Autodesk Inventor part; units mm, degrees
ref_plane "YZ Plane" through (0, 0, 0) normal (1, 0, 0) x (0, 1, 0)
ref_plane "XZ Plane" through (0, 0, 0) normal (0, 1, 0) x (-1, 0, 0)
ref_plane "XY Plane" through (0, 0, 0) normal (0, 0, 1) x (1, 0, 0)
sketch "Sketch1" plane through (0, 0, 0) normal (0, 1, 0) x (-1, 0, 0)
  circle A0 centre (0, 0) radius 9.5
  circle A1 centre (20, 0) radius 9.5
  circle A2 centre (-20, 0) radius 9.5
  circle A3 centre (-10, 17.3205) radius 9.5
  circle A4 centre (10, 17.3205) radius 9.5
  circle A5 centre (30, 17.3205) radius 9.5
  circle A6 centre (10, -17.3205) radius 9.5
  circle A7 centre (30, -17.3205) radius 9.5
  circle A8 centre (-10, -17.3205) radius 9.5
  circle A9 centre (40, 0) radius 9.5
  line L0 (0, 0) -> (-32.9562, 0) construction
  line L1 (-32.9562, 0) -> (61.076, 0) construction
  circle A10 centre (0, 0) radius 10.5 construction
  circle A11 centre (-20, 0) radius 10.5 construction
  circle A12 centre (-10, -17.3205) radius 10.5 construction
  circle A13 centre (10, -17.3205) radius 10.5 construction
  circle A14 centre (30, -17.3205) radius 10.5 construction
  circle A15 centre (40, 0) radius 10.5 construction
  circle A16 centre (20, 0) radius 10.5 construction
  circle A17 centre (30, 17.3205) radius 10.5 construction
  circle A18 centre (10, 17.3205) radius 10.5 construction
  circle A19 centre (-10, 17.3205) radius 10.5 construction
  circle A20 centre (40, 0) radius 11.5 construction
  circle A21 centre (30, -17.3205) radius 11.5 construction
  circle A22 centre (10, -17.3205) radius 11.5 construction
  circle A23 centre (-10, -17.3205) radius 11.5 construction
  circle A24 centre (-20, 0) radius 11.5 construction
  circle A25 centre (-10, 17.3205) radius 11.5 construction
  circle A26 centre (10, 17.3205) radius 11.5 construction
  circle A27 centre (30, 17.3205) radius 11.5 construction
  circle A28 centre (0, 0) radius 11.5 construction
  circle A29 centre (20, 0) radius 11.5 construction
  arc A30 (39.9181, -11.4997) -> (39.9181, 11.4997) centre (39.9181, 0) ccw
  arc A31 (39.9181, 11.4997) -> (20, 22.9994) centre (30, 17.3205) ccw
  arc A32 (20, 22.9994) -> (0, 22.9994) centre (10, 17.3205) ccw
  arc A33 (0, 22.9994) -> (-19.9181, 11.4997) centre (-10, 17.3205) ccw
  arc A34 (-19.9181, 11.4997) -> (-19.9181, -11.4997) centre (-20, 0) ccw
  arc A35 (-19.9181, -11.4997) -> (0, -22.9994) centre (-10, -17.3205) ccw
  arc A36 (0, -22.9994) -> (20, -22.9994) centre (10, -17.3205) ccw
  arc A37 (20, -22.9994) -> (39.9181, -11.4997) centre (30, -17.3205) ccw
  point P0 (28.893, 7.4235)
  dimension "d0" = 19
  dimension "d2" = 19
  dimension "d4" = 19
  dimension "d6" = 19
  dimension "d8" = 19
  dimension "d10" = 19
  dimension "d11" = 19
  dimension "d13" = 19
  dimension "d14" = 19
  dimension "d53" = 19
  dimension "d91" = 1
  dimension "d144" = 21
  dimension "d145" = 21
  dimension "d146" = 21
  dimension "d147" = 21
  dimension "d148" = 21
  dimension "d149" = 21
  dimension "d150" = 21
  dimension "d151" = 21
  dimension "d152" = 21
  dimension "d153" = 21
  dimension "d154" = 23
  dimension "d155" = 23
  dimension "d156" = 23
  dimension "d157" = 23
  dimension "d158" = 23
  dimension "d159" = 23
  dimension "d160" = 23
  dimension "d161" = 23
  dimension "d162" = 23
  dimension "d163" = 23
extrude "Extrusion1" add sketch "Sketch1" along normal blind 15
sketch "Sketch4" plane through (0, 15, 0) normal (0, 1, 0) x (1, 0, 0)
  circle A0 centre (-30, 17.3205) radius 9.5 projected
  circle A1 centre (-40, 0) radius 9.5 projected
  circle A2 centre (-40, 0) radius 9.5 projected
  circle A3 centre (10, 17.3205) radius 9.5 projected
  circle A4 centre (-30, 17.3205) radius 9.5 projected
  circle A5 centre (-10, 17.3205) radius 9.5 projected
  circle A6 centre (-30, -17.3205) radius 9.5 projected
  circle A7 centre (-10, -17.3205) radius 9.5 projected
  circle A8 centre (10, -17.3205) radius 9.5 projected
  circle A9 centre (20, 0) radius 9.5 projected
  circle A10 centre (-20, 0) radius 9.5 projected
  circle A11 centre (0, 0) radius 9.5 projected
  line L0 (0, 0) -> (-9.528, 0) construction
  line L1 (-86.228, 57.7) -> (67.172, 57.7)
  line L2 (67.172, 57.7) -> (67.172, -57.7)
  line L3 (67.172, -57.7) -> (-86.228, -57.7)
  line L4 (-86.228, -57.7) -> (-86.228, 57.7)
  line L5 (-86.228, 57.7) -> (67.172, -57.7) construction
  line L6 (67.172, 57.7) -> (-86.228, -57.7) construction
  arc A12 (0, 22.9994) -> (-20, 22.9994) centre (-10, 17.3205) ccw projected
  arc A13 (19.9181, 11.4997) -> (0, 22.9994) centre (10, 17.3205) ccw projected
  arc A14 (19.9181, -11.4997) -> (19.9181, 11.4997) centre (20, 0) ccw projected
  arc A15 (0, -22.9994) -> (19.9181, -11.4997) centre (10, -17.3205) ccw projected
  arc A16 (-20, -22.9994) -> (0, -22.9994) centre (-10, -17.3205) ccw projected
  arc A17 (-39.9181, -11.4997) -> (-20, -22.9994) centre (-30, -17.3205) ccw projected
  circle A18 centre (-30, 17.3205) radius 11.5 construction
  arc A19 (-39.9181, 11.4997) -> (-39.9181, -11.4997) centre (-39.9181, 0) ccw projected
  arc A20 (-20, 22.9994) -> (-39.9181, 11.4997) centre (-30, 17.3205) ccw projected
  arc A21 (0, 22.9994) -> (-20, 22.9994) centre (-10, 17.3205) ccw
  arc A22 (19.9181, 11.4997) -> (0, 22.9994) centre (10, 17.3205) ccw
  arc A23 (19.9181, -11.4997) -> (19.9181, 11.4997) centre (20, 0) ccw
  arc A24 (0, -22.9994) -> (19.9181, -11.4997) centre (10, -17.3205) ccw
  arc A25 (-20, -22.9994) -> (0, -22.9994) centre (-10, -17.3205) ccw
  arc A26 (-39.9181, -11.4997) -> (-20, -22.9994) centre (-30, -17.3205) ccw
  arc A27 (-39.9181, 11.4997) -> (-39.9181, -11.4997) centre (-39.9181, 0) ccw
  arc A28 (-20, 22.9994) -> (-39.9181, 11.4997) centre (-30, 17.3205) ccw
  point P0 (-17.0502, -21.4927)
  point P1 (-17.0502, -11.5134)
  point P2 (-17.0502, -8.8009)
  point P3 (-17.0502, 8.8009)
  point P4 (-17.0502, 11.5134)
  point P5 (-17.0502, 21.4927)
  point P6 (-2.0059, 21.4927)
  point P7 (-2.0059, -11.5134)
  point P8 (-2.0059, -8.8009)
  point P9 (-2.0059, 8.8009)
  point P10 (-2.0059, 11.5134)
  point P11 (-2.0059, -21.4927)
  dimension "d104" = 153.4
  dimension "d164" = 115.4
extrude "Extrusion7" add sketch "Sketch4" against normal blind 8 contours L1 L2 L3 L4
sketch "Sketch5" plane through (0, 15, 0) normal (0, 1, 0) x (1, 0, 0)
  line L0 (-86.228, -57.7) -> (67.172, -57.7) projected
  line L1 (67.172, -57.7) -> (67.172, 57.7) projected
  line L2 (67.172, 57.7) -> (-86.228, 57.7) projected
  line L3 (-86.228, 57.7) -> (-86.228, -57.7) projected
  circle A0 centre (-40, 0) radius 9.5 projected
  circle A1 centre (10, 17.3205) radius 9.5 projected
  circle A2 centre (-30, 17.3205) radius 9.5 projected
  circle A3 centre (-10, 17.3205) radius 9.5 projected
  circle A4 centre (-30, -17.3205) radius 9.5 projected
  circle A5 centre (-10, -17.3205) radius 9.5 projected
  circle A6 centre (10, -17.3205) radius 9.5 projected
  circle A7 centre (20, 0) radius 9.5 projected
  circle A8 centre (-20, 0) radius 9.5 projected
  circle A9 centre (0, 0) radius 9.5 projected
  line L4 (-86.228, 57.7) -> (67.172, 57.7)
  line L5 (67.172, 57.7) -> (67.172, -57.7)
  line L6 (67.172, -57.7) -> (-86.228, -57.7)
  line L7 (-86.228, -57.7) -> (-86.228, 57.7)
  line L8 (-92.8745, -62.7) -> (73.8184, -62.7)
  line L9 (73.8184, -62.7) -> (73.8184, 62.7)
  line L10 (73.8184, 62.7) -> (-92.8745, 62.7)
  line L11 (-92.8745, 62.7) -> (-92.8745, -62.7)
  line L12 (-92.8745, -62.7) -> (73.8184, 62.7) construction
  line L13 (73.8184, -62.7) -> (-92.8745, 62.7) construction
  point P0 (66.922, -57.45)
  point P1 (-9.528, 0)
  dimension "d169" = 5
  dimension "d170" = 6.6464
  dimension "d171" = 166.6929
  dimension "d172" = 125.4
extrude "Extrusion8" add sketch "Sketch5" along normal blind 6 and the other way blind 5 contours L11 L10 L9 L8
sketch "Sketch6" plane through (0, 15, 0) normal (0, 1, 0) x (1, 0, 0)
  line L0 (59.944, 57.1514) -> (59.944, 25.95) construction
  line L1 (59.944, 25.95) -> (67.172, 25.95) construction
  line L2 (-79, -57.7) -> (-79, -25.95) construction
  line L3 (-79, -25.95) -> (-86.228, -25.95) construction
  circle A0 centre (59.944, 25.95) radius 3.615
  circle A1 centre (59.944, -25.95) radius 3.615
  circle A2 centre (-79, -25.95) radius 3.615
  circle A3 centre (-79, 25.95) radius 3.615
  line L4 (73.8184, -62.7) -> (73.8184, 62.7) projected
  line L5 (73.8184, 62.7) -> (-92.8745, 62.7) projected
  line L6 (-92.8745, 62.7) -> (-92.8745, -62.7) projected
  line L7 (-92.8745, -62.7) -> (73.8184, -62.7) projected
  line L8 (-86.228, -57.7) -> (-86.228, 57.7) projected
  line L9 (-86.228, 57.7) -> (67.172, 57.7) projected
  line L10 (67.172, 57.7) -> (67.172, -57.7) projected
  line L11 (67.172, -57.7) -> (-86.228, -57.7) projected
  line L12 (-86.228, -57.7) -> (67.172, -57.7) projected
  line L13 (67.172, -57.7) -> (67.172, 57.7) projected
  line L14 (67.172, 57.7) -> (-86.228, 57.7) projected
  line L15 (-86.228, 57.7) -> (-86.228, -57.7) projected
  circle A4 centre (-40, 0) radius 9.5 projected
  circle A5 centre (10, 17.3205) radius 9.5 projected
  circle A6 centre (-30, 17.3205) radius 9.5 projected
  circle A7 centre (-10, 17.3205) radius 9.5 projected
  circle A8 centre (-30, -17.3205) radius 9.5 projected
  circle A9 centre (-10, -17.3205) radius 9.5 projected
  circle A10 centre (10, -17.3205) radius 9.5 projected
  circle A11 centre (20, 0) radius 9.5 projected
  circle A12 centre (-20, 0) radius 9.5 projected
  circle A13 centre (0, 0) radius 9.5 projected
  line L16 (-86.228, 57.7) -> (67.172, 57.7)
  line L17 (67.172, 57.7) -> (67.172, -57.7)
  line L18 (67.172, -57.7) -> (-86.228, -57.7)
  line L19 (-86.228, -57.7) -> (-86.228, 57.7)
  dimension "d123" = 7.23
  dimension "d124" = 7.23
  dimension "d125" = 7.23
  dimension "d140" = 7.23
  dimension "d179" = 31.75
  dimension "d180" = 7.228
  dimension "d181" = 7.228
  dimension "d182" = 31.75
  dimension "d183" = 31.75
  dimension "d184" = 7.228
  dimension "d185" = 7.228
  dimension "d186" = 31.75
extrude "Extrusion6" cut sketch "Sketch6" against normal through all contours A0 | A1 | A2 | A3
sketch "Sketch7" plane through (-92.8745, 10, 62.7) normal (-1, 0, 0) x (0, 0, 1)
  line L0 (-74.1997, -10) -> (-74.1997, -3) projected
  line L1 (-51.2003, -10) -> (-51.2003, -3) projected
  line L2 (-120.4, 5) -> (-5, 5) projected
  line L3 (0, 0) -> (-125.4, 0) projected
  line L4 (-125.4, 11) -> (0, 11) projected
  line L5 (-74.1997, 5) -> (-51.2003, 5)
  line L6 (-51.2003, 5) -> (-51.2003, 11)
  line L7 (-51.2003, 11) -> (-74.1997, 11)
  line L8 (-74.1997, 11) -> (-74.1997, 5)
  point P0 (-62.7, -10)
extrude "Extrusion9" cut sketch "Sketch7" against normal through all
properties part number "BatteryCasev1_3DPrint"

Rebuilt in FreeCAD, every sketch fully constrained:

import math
import FreeCAD as App
import Part
import Sketcher

V = App.Vector
Q = App.Units.Quantity


def add_polygon(sketch, points):
    """Adds a closed chain of lines whose ends are joined by coincident constraints."""
    first, n = sketch.GeometryCount, len(points)
    for a, b in zip(points, points[1:] + points[:1]):
        sketch.addGeometry(Part.LineSegment(App.Vector(*a, 0), App.Vector(*b, 0)), False)
    for i in range(n):
        sketch.addConstraint(Sketcher.Constraint("Coincident", first + i, 2, first + (i + 1) % n, 1))

doc = App.newDocument("Part")
body = doc.addObject("PartDesign::Body", "Body")

# Sketch on XZ plane
sketch1 = body.newObject("Sketcher::SketchObject", "Sketch")
sketch1.AttachmentSupport = (doc.getObject("XZ_Plane"), [""])
sketch1.MapMode = "FlatFace"
sketch1.addGeometry(Part.ArcOfCircle(Part.Circle(V(-30, -17, 0), V(0, 0, 1), 12), math.radians(150), math.radians(330)), False)
sketch1.addGeometry(Part.ArcOfCircle(Part.Circle(V(-40, 0, 0), V(0, 0, 1), 11), math.radians(90), math.radians(270)), False)
sketch1.addGeometry(Part.ArcOfCircle(Part.Circle(V(-30, 17, 0), V(0, 0, 1), 12), math.radians(30), math.radians(210)), False)
sketch1.addGeometry(Part.ArcOfCircle(Part.Circle(V(-10, 17, 0), V(0, 0, 1), 11), math.radians(30), math.radians(150)), False)
sketch1.addGeometry(Part.ArcOfCircle(Part.Circle(V(10, 17, 0), V(0, 0, 1), 12), math.radians(-30), math.radians(150)), False)
sketch1.addGeometry(Part.ArcOfCircle(Part.Circle(V(20, 0, 0), V(0, 0, 1), 11), math.radians(-90), math.radians(90)), False)
sketch1.addGeometry(Part.ArcOfCircle(Part.Circle(V(10, -17, 0), V(0, 0, 1), 12), math.radians(-150), math.radians(30)), False)
sketch1.addGeometry(Part.ArcOfCircle(Part.Circle(V(-10, -17, 0), V(0, 0, 1), 11), math.radians(-150), math.radians(-30)), False)
sketch1.addGeometry(Part.Circle(V(10, -17, 0), V(0, 0, 1), 10), False)
sketch1.addGeometry(Part.Circle(V(-10, -17, 0), V(0, 0, 1), 10), False)
sketch1.addGeometry(Part.Circle(V(-30, -17, 0), V(0, 0, 1), 10), False)
sketch1.addGeometry(Part.Circle(V(20, 0, 0), V(0, 0, 1), 10), False)
sketch1.addGeometry(Part.Circle(V(0, 0, 0), V(0, 0, 1), 10), False)
sketch1.addGeometry(Part.Circle(V(10, 17, 0), V(0, 0, 1), 10), False)
sketch1.addGeometry(Part.Circle(V(-20, 0, 0), V(0, 0, 1), 10), False)
sketch1.addGeometry(Part.Circle(V(-40, 0, 0), V(0, 0, 1), 10), False)
sketch1.addGeometry(Part.Circle(V(-10, 17, 0), V(0, 0, 1), 10), False)
sketch1.addGeometry(Part.Circle(V(-30, 17, 0), V(0, 0, 1), 10), False)
sketch1.addConstraint(Sketcher.Constraint("Coincident", 0, 1, 1, 2))
sketch1.addConstraint(Sketcher.Constraint("Coincident", 1, 1, 2, 2))
sketch1.addConstraint(Sketcher.Constraint("Coincident", 2, 1, 3, 2))
sketch1.addConstraint(Sketcher.Constraint("Coincident", 3, 1, 4, 2))
sketch1.addConstraint(Sketcher.Constraint("Coincident", 4, 1, 5, 2))
sketch1.addConstraint(Sketcher.Constraint("Coincident", 5, 1, 6, 2))
sketch1.addConstraint(Sketcher.Constraint("Coincident", 6, 1, 7, 2))
sketch1.addConstraint(Sketcher.Constraint("Coincident", 7, 1, 0, 2))
sketch1.addConstraint(Sketcher.Constraint("Coincident", 12, 3, -1, 1))
sketch1.addConstraint(Sketcher.Constraint("Coincident", 8, 3, 6, 3))
sketch1.addConstraint(Sketcher.Constraint("Coincident", 9, 3, 7, 3))
sketch1.addConstraint(Sketcher.Constraint("Coincident", 10, 3, 0, 3))
sketch1.addConstraint(Sketcher.Constraint("Coincident", 11, 3, 5, 3))
sketch1.addConstraint(Sketcher.Constraint("Coincident", 13, 3, 4, 3))
sketch1.addConstraint(Sketcher.Constraint("Coincident", 16, 3, 3, 3))
sketch1.addConstraint(Sketcher.Constraint("Coincident", 17, 3, 2, 3))
sketch1.addConstraint(Sketcher.Constraint("Equal", 0, 2))
sketch1.addConstraint(Sketcher.Constraint("Equal", 2, 3))
sketch1.addConstraint(Sketcher.Constraint("Equal", 3, 4))
sketch1.addConstraint(Sketcher.Constraint("Equal", 4, 5))
sketch1.addConstraint(Sketcher.Constraint("Equal", 5, 6))
sketch1.addConstraint(Sketcher.Constraint("Equal", 6, 7))
sketch1.addConstraint(Sketcher.Constraint("Equal", 8, 9))
sketch1.addConstraint(Sketcher.Constraint("Equal", 9, 10))
sketch1.addConstraint(Sketcher.Constraint("Equal", 10, 11))
sketch1.addConstraint(Sketcher.Constraint("Equal", 11, 12))
sketch1.addConstraint(Sketcher.Constraint("Equal", 12, 13))
sketch1.addConstraint(Sketcher.Constraint("Equal", 13, 14))
sketch1.addConstraint(Sketcher.Constraint("Equal", 14, 15))
sketch1.addConstraint(Sketcher.Constraint("Equal", 15, 16))
sketch1.addConstraint(Sketcher.Constraint("Equal", 16, 17))
sketch1.addConstraint(Sketcher.Constraint("Symmetric", 3, 3, 6, 3, -1, 1))
sketch1.addConstraint(Sketcher.Constraint("Symmetric", 4, 3, 7, 3, -1, 1))
sketch1.addConstraint(Sketcher.Constraint("Symmetric", 5, 3, 14, 3, -1, 1))
sketch1.addConstraint(Sketcher.Constraint("Symmetric", 3, 3, 4, 3, -2))
sketch1.addConstraint(Sketcher.Constraint("Symmetric", 0, 3, 2, 3, -1))
sketch1.addConstraint(Sketcher.Constraint("PointOnObject", 1, 3, -1))
sketch1.addConstraint(Sketcher.Constraint("PointOnObject", 5, 3, -1))
sketch1.addConstraint(Sketcher.Constraint("PointOnObject", 15, 3, -1))
sketch1.addConstraint(Sketcher.Constraint("Horizontal", 2, 3, 3, 3))
sketch1.addConstraint(Sketcher.Constraint("Horizontal", 2, 1, 3, 1))
sketch1.addConstraint(Sketcher.Constraint("Horizontal", 1, 1, 4, 1))
sketch1.addConstraint(Sketcher.Constraint("Vertical", 1, 3, 0, 1))
sketch1.addConstraint(Sketcher.Constraint("Vertical", 14, 3, 2, 1))
sketch1.addConstraint(Sketcher.Constraint("Diameter", 8, Q("19 mm")))
sketch1.addConstraint(Sketcher.Constraint("Radius", 0, Q("11.5 mm")))
sketch1.addConstraint(Sketcher.Constraint("DistanceX", 0, 3, -1, 1, Q("30 mm")))
sketch1.addConstraint(Sketcher.Constraint("DistanceX", 15, 3, -1, 1, Q("40 mm")))
sketch1.addConstraint(Sketcher.Constraint("DistanceY", -1, 1, 2, 1, Q("22.9994 mm")))
pad1 = body.newObject("PartDesign::Pad", "Pad")
pad1.Profile = sketch1
pad1.Length = 15
pad1.Reversed = True

# Sketch on XZ plane
sketch2 = body.newObject("Sketcher::SketchObject", "Sketch001")
sketch2.AttachmentSupport = (doc.getObject("XZ_Plane"), [""])
sketch2.MapMode = "FlatFace"
sketch2.AttachmentOffset = App.Placement(V(0, 0, -15), App.Rotation())
add_polygon(sketch2, [(67, -58), (-86, -58), (-86, 58), (67, 58)])  # lines 0-3
sketch2.addGeometry(Part.ArcOfCircle(Part.Circle(V(-10, -17, 0), V(0, 0, 1), 11), math.radians(-150), math.radians(-30)), False)  # 4
sketch2.addGeometry(Part.ArcOfCircle(Part.Circle(V(10, -17, 0), V(0, 0, 1), 12), math.radians(-150), math.radians(30)), False)  # 5
sketch2.addGeometry(Part.ArcOfCircle(Part.Circle(V(20, 0, 0), V(0, 0, 1), 11), math.radians(-90), math.radians(90)), False)  # 6
sketch2.addGeometry(Part.ArcOfCircle(Part.Circle(V(10, 17, 0), V(0, 0, 1), 11), math.radians(-30), math.radians(150)), False)  # 7
sketch2.addGeometry(Part.ArcOfCircle(Part.Circle(V(-10, 17, 0), V(0, 0, 1), 11), math.radians(30), math.radians(150)), False)  # 8
sketch2.addGeometry(Part.ArcOfCircle(Part.Circle(V(-30, 17, 0), V(0, 0, 1), 12), math.radians(30), math.radians(210)), False)  # 9
sketch2.addGeometry(Part.ArcOfCircle(Part.Circle(V(-40, 0, 0), V(0, 0, 1), 11), math.radians(90), math.radians(270)), False)  # 10
sketch2.addGeometry(Part.ArcOfCircle(Part.Circle(V(-30, -17, 0), V(0, 0, 1), 12), math.radians(150), math.radians(330)), False)  # 11
sketch2.addConstraint(Sketcher.Constraint("Coincident", 4, 2, 5, 1))
sketch2.addConstraint(Sketcher.Constraint("Coincident", 5, 2, 6, 1))
sketch2.addConstraint(Sketcher.Constraint("Coincident", 6, 2, 7, 1))
sketch2.addConstraint(Sketcher.Constraint("Coincident", 7, 2, 8, 1))
sketch2.addConstraint(Sketcher.Constraint("Coincident", 8, 2, 9, 1))
sketch2.addConstraint(Sketcher.Constraint("Coincident", 9, 2, 10, 1))
sketch2.addConstraint(Sketcher.Constraint("Coincident", 10, 2, 11, 1))
sketch2.addConstraint(Sketcher.Constraint("Coincident", 11, 2, 4, 1))
sketch2.addConstraint(Sketcher.Constraint("Horizontal", 0))
sketch2.addConstraint(Sketcher.Constraint("Vertical", 1))
sketch2.addConstraint(Sketcher.Constraint("Horizontal", 2))
sketch2.addConstraint(Sketcher.Constraint("Vertical", 3))
sketch2.addConstraint(Sketcher.Constraint("Equal", 4, 5))
sketch2.addConstraint(Sketcher.Constraint("Equal", 5, 6))
sketch2.addConstraint(Sketcher.Constraint("Equal", 6, 7))
sketch2.addConstraint(Sketcher.Constraint("Equal", 7, 8))
sketch2.addConstraint(Sketcher.Constraint("Equal", 8, 9))
sketch2.addConstraint(Sketcher.Constraint("Equal", 9, 11))
sketch2.addConstraint(Sketcher.Constraint("Symmetric", 4, 3, 7, 3, -1, 1))
sketch2.addConstraint(Sketcher.Constraint("Symmetric", 5, 3, 8, 3, -1, 1))
sketch2.addConstraint(Sketcher.Constraint("Symmetric", 4, 3, 5, 3, -2))
sketch2.addConstraint(Sketcher.Constraint("Symmetric", 9, 3, 11, 3, -1))
sketch2.addConstraint(Sketcher.Constraint("PointOnObject", 6, 3, -1))
sketch2.addConstraint(Sketcher.Constraint("PointOnObject", 10, 3, -1))
sketch2.addConstraint(Sketcher.Constraint("Horizontal", 8, 3, 9, 3))
sketch2.addConstraint(Sketcher.Constraint("Horizontal", 7, 2, 8, 2))
sketch2.addConstraint(Sketcher.Constraint("Horizontal", 6, 2, 9, 2))
sketch2.addConstraint(Sketcher.Constraint("Vertical", 10, 3, 9, 2))
sketch2.addConstraint(Sketcher.Constraint("DistanceX", 0, 2, 0, 1, Q("153.4 mm")))
sketch2.addConstraint(Sketcher.Constraint("DistanceY", 1, 1, 1, 2, Q("115.4 mm")))
sketch2.addConstraint(Sketcher.Constraint("Radius", 4, Q("11.5 mm")))
sketch2.addConstraint(Sketcher.Constraint("DistanceX", 4, 3, -1, 1, Q("10 mm")))
sketch2.addConstraint(Sketcher.Constraint("DistanceX", -1, 1, 6, 3, Q("20 mm")))
sketch2.addConstraint(Sketcher.Constraint("DistanceY", 0, 2, -1, 1, Q("57.7 mm")))
sketch2.addConstraint(Sketcher.Constraint("DistanceX", 0, 2, 10, 3, Q("46.31 mm")))
sketch2.addConstraint(Sketcher.Constraint("DistanceY", 4, 2, 7, 3, Q("40.32 mm")))
pad2 = body.newObject("PartDesign::Pad", "Pad001")
pad2.Profile = sketch2
pad2.Length = 8

# Sketch on XZ plane
sketch3 = body.newObject("Sketcher::SketchObject", "Sketch002")
sketch3.AttachmentSupport = (doc.getObject("XZ_Plane"), [""])
sketch3.MapMode = "FlatFace"
sketch3.AttachmentOffset = App.Placement(V(0, 0, -15), App.Rotation())
add_polygon(sketch3, [(-93, -63), (-93, 63), (74, 63), (74, -63)])  # lines 0-3
add_polygon(sketch3, [(67, 58), (-86, 58), (-86, -58), (67, -58)])  # lines 4-7
sketch3.addConstraint(Sketcher.Constraint("Vertical", 0))
sketch3.addConstraint(Sketcher.Constraint("Horizontal", 1))
sketch3.addConstraint(Sketcher.Constraint("Vertical", 2))
sketch3.addConstraint(Sketcher.Constraint("Horizontal", 3))
sketch3.addConstraint(Sketcher.Constraint("Horizontal", 4))
sketch3.addConstraint(Sketcher.Constraint("Vertical", 5))
sketch3.addConstraint(Sketcher.Constraint("Horizontal", 6))
sketch3.addConstraint(Sketcher.Constraint("Vertical", 7))
sketch3.addConstraint(Sketcher.Constraint("DistanceY", 0, 1, 0, 2, Q("125.4 mm")))
sketch3.addConstraint(Sketcher.Constraint("DistanceY", 4, 2, 0, 2, Q("5 mm")))
sketch3.addConstraint(Sketcher.Constraint("DistanceY", 3, 2, 5, 2, Q("5 mm")))
sketch3.addConstraint(Sketcher.Constraint("DistanceX", 1, 1, 1, 2, Q("166.693 mm")))
sketch3.addConstraint(Sketcher.Constraint("DistanceX", 4, 2, 4, 1, Q("153.4 mm")))
sketch3.addConstraint(Sketcher.Constraint("DistanceY", -1, 1, 0, 2, Q("62.7 mm")))
sketch3.addConstraint(Sketcher.Constraint("DistanceX", 0, 2, 4, 2, Q("6.6465 mm")))
sketch3.addConstraint(Sketcher.Constraint("DistanceX", 4, 2, -1, 1, Q("86.228 mm")))
pad3 = body.newObject("PartDesign::Pad", "Pad002")
pad3.Profile = sketch3
pad3.Type = "TwoLengths"
pad3.Length = 6
pad3.Length2 = 5
pad3.Reversed = True

# Sketch on XZ plane
sketch4 = body.newObject("Sketcher::SketchObject", "Sketch003")
sketch4.AttachmentSupport = (doc.getObject("XZ_Plane"), [""])
sketch4.MapMode = "FlatFace"
sketch4.AttachmentOffset = App.Placement(V(0, 0, -15), App.Rotation())
sketch4.addGeometry(Part.Circle(V(59.9, -25.9, 0), V(0, 0, 1), 3.6), False)
sketch4.addGeometry(Part.Circle(V(59.9, 25.9, 0), V(0, 0, 1), 3.6), False)
sketch4.addGeometry(Part.Circle(V(-79, 25.9, 0), V(0, 0, 1), 3.6), False)
sketch4.addGeometry(Part.Circle(V(-79, -25.9, 0), V(0, 0, 1), 3.6), False)
sketch4.addConstraint(Sketcher.Constraint("Equal", 0, 1))
sketch4.addConstraint(Sketcher.Constraint("Equal", 1, 2))
sketch4.addConstraint(Sketcher.Constraint("Equal", 2, 3))
sketch4.addConstraint(Sketcher.Constraint("Symmetric", 0, 3, 1, 3, -1))
sketch4.addConstraint(Sketcher.Constraint("Symmetric", 2, 3, 3, 3, -1))
sketch4.addConstraint(Sketcher.Constraint("Horizontal", 1, 3, 2, 3))
sketch4.addConstraint(Sketcher.Constraint("Diameter", 0, Q("7.23 mm")))
sketch4.addConstraint(Sketcher.Constraint("DistanceX", 2, 3, -1, 1, Q("79 mm")))
sketch4.addConstraint(Sketcher.Constraint("DistanceY", 0, 3, 1, 3, Q("51.9 mm")))
sketch4.addConstraint(Sketcher.Constraint("DistanceX", -1, 1, 0, 3, Q("59.944 mm")))
pocket1 = body.newObject("PartDesign::Pocket", "Pocket")
pocket1.Profile = sketch4
pocket1.Type = "ThroughAll"
pocket1.Reversed = True

# Sketch on YZ plane
sketch5 = body.newObject("Sketcher::SketchObject", "Sketch004")
sketch5.AttachmentSupport = (doc.getObject("YZ_Plane"), [""])
sketch5.MapMode = "FlatFace"
sketch5.AttachmentOffset = App.Placement(V(0, 0, -92.8745), App.Rotation())
add_polygon(sketch5, [(21, -11), (15, -11), (15, 11), (21, 11)])  # lines 0-3
sketch5.addConstraint(Sketcher.Constraint("Horizontal", 0))
sketch5.addConstraint(Sketcher.Constraint("Vertical", 1))
sketch5.addConstraint(Sketcher.Constraint("Horizontal", 2))
sketch5.addConstraint(Sketcher.Constraint("Vertical", 3))
sketch5.addConstraint(Sketcher.Constraint("DistanceX", 0, 2, 0, 1, Q("6 mm")))
sketch5.addConstraint(Sketcher.Constraint("DistanceX", -1, 1, 0, 2, Q("15 mm")))
sketch5.addConstraint(Sketcher.Constraint("DistanceY", 1, 1, 1, 2, Q("22.9994 mm")))
sketch5.addConstraint(Sketcher.Constraint("DistanceY", 0, 2, -1, 1, Q("11.4997 mm")))
pocket2 = body.newObject("PartDesign::Pocket", "Pocket001")
pocket2.Profile = sketch5
pocket2.Type = "ThroughAll"
pocket2.Reversed = True

doc.recompute()
